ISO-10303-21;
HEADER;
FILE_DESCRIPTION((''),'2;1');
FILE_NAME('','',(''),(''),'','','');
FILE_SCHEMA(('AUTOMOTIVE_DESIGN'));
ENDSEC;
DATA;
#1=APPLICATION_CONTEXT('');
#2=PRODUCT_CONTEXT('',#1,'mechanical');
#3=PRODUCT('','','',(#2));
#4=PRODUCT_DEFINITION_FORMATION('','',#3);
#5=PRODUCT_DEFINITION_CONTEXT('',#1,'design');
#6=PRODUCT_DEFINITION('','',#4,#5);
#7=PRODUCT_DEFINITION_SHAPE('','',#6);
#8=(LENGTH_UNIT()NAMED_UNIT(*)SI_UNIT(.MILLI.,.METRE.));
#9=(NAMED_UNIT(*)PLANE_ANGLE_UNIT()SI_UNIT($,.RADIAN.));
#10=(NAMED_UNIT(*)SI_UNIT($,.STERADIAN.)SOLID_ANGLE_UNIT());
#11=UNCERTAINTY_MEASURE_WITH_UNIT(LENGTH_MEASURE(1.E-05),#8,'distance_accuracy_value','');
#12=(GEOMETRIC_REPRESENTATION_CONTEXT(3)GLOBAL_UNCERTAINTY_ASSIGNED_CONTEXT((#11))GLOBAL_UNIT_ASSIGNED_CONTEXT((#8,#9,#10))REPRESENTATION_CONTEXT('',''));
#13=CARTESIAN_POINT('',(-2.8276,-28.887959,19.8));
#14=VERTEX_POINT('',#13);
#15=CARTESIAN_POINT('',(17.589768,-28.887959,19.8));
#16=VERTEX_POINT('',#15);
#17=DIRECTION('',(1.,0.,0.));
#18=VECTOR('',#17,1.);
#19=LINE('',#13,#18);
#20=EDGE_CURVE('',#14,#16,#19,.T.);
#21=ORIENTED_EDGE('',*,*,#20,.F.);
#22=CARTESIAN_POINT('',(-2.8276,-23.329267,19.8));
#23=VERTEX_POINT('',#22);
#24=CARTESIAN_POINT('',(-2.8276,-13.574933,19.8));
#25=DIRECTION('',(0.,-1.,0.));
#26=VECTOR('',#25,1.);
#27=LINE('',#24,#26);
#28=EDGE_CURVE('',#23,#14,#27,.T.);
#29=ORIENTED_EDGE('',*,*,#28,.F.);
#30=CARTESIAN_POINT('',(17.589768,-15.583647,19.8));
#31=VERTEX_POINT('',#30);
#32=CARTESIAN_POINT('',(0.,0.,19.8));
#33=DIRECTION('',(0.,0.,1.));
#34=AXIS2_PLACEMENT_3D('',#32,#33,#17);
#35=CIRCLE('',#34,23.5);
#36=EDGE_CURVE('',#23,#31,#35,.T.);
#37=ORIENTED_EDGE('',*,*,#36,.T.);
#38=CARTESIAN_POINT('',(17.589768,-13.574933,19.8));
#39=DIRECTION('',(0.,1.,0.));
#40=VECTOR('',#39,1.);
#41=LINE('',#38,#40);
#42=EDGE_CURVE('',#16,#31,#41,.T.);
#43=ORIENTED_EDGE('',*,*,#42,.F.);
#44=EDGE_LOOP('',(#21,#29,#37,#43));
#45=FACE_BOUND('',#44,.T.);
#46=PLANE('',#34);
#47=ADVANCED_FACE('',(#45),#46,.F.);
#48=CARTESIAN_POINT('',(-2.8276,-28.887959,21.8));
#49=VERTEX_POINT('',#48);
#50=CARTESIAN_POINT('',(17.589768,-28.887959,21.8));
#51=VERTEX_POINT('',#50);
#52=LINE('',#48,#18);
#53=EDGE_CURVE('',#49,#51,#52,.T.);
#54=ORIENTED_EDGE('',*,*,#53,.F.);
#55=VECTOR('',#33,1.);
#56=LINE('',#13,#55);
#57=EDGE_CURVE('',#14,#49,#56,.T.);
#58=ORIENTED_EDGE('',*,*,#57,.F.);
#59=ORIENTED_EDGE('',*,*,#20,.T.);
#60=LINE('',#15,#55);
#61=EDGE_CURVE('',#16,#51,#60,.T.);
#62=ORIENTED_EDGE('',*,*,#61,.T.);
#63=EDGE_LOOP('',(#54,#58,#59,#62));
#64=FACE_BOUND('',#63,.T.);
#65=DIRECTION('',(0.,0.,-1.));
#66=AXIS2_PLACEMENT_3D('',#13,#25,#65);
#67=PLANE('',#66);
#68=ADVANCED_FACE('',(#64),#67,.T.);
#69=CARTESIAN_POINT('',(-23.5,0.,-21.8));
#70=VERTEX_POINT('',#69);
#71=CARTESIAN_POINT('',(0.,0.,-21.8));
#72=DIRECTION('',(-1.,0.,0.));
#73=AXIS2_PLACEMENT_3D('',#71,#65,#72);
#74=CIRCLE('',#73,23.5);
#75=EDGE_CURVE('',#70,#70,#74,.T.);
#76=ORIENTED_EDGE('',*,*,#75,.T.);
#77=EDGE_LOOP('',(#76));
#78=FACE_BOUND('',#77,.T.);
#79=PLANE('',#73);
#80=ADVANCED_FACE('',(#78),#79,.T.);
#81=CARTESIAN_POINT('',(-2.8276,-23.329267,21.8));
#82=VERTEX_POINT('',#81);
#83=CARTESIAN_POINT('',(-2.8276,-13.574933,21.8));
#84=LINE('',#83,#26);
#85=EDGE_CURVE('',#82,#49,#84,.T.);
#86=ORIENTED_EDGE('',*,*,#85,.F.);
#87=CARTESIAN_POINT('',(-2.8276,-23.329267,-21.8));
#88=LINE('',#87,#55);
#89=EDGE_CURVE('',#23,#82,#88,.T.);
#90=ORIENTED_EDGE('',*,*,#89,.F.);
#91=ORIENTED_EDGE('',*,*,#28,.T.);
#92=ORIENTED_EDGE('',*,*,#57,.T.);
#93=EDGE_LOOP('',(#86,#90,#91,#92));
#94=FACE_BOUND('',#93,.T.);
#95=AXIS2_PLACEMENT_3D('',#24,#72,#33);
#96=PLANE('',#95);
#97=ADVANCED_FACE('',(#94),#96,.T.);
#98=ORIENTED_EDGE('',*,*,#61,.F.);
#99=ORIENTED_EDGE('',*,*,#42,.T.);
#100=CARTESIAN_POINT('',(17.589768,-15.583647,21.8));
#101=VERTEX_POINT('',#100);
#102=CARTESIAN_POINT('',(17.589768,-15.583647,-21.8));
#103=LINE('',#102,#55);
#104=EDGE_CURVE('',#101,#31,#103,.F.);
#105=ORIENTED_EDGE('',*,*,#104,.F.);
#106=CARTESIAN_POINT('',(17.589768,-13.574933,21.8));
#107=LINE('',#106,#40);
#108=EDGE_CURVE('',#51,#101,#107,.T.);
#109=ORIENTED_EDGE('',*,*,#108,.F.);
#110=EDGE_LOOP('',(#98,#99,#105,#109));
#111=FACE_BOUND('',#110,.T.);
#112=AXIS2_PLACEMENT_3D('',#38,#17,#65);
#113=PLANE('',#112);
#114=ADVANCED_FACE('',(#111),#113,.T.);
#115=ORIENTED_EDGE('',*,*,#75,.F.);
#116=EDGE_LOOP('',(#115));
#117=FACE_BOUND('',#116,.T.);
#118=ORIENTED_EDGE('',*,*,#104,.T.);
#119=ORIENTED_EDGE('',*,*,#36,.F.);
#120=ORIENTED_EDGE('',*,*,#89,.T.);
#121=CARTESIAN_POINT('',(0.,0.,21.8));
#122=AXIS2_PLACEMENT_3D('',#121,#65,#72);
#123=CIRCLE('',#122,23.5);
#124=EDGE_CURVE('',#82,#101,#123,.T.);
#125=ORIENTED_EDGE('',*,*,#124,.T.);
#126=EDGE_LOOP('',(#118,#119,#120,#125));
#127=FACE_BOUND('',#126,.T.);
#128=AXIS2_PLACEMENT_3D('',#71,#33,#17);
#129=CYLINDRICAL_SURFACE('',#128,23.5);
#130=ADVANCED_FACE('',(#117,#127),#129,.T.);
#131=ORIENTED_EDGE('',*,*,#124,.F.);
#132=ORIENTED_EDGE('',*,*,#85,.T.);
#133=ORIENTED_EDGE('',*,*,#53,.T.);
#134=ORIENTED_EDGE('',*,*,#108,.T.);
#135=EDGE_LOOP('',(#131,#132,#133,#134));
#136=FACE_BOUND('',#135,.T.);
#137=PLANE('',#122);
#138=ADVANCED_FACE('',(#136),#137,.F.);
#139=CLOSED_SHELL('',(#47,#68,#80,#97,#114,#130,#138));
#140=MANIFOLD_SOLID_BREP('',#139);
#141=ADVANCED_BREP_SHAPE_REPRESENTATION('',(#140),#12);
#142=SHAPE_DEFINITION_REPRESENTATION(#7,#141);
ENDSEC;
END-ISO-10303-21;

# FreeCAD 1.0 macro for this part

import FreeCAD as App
import Part
import Sketcher
from FreeCAD import Vector
Q = App.Units.Quantity


def add_polygon(sketch, points):
    """Adds a closed chain of lines whose ends are joined by coincident constraints."""
    first, n = sketch.GeometryCount, len(points)
    for a, b in zip(points, points[1:] + points[:1]):
        sketch.addGeometry(Part.LineSegment(App.Vector(*a, 0), App.Vector(*b, 0)), False)
    for i in range(n):
        sketch.addConstraint(Sketcher.Constraint("Coincident", first + i, 2, first + (i + 1) % n, 1))

doc = App.newDocument("Part")
body = doc.addObject("PartDesign::Body", "Body")

# Sketch on XY plane
sketch1 = body.newObject("Sketcher::SketchObject", "Sketch")
sketch1.AttachmentSupport = (doc.getObject("XY_Plane"), [""])
sketch1.MapMode = "FlatFace"
sketch1.addGeometry(Part.Circle(Vector(0, 0, 0), Vector(0, 0, 1), 24), False)
sketch1.addConstraint([
    Sketcher.Constraint("Coincident", 0, 3, -1, 1),
    Sketcher.Constraint("Diameter", 0, Q("47 mm")),
])
pad1 = body.newObject("PartDesign::Pad", "Pad")
pad1.Profile = sketch1
pad1.Length = 43.6
pad1.Midplane = True

# Sketch on XY plane
sketch2 = body.newObject("Sketcher::SketchObject", "Sketch001")
sketch2.AttachmentSupport = (doc.getObject("XY_Plane"), [""])
sketch2.MapMode = "FlatFace"
sketch2.AttachmentOffset = App.Placement(Vector(0, 0, 21.8), App.Rotation())
add_polygon(sketch2, [(-3, -14), (-3, -29), (18, -29), (18, -14)])  # lines 0-3
sketch2.addConstraint([
    Sketcher.Constraint("Vertical", 0),
    Sketcher.Constraint("Horizontal", 1),
    Sketcher.Constraint("Vertical", 2),
    Sketcher.Constraint("Horizontal", 3),
    Sketcher.Constraint("DistanceX", 1, 1, 1, 2, Q("20.417369 mm")),
    Sketcher.Constraint("DistanceX", 0, 2, -1, 1, Q("2.8276 mm")),
    Sketcher.Constraint("DistanceY", 0, 2, 0, 1, Q("15.313026 mm")),
    Sketcher.Constraint("DistanceY", 0, 2, -1, 1, Q("28.887959 mm")),
])
pad2 = body.newObject("PartDesign::Pad", "Pad001")
pad2.Profile = sketch2
pad2.Length = 2
pad2.Reversed = True

doc.recompute()
